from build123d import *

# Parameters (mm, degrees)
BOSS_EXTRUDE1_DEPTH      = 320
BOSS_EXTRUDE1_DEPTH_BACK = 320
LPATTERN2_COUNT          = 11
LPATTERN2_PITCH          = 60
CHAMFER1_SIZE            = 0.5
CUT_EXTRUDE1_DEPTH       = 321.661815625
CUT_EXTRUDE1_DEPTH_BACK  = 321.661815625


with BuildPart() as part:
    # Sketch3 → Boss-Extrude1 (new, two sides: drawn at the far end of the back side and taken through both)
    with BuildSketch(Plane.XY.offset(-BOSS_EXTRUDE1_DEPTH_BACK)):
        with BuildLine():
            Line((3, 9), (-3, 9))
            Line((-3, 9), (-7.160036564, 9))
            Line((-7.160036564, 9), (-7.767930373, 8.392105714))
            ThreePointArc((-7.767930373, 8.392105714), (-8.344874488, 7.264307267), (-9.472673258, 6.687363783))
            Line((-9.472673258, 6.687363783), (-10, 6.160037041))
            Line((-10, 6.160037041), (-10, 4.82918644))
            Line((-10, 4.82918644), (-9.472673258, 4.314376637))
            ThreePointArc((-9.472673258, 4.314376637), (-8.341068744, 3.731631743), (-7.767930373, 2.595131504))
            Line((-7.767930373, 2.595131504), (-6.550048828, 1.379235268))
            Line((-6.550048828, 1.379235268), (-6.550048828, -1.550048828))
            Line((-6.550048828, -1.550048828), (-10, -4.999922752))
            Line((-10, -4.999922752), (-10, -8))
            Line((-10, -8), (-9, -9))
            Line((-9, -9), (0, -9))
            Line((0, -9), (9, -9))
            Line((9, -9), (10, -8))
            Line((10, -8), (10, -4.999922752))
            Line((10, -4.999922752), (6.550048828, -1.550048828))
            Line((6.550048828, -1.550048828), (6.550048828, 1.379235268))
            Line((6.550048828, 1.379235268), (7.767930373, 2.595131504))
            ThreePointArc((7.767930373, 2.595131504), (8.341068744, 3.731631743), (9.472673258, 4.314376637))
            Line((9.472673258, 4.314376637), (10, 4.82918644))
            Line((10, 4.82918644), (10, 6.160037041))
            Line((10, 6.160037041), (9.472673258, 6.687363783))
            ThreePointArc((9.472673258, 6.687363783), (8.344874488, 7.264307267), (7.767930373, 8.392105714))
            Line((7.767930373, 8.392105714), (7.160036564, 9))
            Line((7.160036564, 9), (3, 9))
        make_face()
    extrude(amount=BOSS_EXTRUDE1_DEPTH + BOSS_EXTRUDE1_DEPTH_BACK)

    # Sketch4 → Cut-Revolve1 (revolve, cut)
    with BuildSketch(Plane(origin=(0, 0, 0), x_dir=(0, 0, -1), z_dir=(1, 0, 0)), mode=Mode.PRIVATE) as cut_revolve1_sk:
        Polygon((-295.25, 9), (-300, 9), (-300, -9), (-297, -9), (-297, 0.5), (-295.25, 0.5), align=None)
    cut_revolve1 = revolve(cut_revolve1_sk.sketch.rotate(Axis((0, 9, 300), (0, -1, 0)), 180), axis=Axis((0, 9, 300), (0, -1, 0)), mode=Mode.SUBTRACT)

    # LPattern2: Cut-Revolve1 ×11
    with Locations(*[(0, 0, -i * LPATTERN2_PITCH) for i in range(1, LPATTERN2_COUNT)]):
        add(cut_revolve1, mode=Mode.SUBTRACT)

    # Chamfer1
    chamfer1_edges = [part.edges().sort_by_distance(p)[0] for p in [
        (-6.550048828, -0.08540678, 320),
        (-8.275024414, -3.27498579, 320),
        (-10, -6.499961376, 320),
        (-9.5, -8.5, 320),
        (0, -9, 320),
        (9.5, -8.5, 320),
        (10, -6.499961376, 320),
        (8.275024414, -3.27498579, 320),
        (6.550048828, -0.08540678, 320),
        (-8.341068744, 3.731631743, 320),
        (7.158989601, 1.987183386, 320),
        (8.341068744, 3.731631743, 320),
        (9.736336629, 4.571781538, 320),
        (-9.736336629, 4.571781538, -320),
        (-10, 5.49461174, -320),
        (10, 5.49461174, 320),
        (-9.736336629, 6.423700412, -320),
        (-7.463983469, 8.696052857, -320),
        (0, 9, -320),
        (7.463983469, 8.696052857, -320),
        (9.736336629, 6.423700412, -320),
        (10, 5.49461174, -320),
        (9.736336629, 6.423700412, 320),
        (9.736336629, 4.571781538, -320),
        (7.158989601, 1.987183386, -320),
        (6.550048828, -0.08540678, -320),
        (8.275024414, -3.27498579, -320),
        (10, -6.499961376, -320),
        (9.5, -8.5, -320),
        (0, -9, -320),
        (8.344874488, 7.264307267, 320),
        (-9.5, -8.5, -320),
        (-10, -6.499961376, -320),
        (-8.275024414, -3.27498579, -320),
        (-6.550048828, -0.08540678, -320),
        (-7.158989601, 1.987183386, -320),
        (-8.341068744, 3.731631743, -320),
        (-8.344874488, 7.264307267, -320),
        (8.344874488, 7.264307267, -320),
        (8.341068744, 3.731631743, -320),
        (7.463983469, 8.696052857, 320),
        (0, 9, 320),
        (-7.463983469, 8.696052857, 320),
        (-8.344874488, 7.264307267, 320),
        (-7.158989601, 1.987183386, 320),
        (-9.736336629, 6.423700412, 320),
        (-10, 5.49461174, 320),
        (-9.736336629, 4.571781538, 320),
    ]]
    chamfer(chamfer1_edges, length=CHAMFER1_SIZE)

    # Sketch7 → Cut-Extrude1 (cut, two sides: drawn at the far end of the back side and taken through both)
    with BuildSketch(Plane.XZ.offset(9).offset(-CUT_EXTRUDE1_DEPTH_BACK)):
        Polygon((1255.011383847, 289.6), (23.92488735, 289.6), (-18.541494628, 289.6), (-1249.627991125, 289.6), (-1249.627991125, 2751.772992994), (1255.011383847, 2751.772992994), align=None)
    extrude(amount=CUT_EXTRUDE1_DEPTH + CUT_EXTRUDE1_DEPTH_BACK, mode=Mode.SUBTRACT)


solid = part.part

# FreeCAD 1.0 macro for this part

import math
import FreeCAD as App
import Part
import Sketcher


def edges_at(feature, points):
    """Names of the edges that pass closest to the given points."""
    edges = feature.Shape.Edges
    near = lambda p: min(range(len(edges)), key=lambda i: edges[i].distToShape(Part.Vertex(*p))[0])
    return sorted({f"Edge{near(p) + 1}" for p in points})


def add_polygon(sketch, points):
    """Adds a closed chain of lines whose ends are joined by coincident constraints."""
    first, n = sketch.GeometryCount, len(points)
    for a, b in zip(points, points[1:] + points[:1]):
        sketch.addGeometry(Part.LineSegment(App.Vector(*a, 0), App.Vector(*b, 0)), False)
    for i in range(n):
        sketch.addConstraint(Sketcher.Constraint("Coincident", first + i, 2, first + (i + 1) % n, 1))

doc = App.newDocument("Part")
body = doc.addObject("PartDesign::Body", "Body")

# Sketch on XY plane
sketch1 = body.newObject("Sketcher::SketchObject", "Sketch")
sketch1.AttachmentSupport = (doc.getObject("XY_Plane"), [""])
sketch1.MapMode = "FlatFace"
sketch1.addGeometry([
    Part.LineSegment(App.Vector(-7.160037, 9, 0), App.Vector(-7.76793, 8.392106, 0)),  # 0
    Part.ArcOfCircle(Part.Circle(App.Vector(-9.801514, 8.720947, 0), App.Vector(0, 0, 1), 2.059999), math.radians(-80.814503), math.radians(-9.185529)),  # 1
    Part.LineSegment(App.Vector(-9.472673, 6.687364, 0), App.Vector(-10, 6.160037, 0)),  # 2
    Part.LineSegment(App.Vector(-10, 6.160037, 0), App.Vector(-10, 4.829186, 0)),  # 3
    Part.LineSegment(App.Vector(-10, 4.829186, 0), App.Vector(-9.472673, 4.314377, 0)),  # 4
    Part.ArcOfCircle(Part.Circle(App.Vector(-9.803865, 2.281175, 0), App.Vector(0, 0, 1), 2.059999), math.radians(8.766397), math.radians(80.748255)),  # 5
    Part.LineSegment(App.Vector(-7.76793, 2.595132, 0), App.Vector(-6.550049, 1.379235, 0)),  # 6
    Part.LineSegment(App.Vector(-6.550049, 1.379235, 0), App.Vector(-6.550049, -1.550049, 0)),  # 7
    Part.LineSegment(App.Vector(-6.550049, -1.550049, 0), App.Vector(-10, -4.999923, 0)),  # 8
    Part.LineSegment(App.Vector(-10, -4.999923, 0), App.Vector(-10, -8, 0)),  # 9
    Part.LineSegment(App.Vector(-10, -8, 0), App.Vector(-9, -9, 0)),  # 10
    Part.LineSegment(App.Vector(-9, -9, 0), App.Vector(9, -9, 0)),  # 11
    Part.LineSegment(App.Vector(9, -9, 0), App.Vector(10, -8, 0)),  # 12
    Part.LineSegment(App.Vector(10, -8, 0), App.Vector(10, -4.999923, 0)),  # 13
    Part.LineSegment(App.Vector(10, -4.999923, 0), App.Vector(6.550049, -1.550049, 0)),  # 14
    Part.LineSegment(App.Vector(6.550049, -1.550049, 0), App.Vector(6.550049, 1.379235, 0)),  # 15
    Part.LineSegment(App.Vector(6.550049, 1.379235, 0), App.Vector(7.76793, 2.595132, 0)),  # 16
    Part.ArcOfCircle(Part.Circle(App.Vector(9.803865, 2.281175, 0), App.Vector(0, 0, 1), 2.059999), math.radians(99.251745), math.radians(171.233603)),  # 17
    Part.LineSegment(App.Vector(9.472673, 4.314377, 0), App.Vector(10, 4.829186, 0)),  # 18
    Part.LineSegment(App.Vector(10, 4.829186, 0), App.Vector(10, 6.160037, 0)),  # 19
    Part.LineSegment(App.Vector(10, 6.160037, 0), App.Vector(9.472673, 6.687364, 0)),  # 20
    Part.ArcOfCircle(Part.Circle(App.Vector(9.801514, 8.720947, 0), App.Vector(0, 0, 1), 2.059999), math.radians(-170.814471), math.radians(-99.185497)),  # 21
    Part.LineSegment(App.Vector(7.76793, 8.392106, 0), App.Vector(7.160037, 9, 0)),  # 22
    Part.LineSegment(App.Vector(7.160037, 9, 0), App.Vector(-7.160037, 9, 0)),  # 23
], False)
sketch1.addConstraint([
    Sketcher.Constraint("Coincident", 0, 2, 1, 2),
    Sketcher.Constraint("Coincident", 1, 1, 2, 1),
    Sketcher.Constraint("Coincident", 2, 2, 3, 1),
    Sketcher.Constraint("Coincident", 3, 2, 4, 1),
    Sketcher.Constraint("Coincident", 4, 2, 5, 2),
    Sketcher.Constraint("Coincident", 5, 1, 6, 1),
    Sketcher.Constraint("Coincident", 6, 2, 7, 1),
    Sketcher.Constraint("Coincident", 7, 2, 8, 1),
    Sketcher.Constraint("Coincident", 8, 2, 9, 1),
    Sketcher.Constraint("Coincident", 9, 2, 10, 1),
    Sketcher.Constraint("Coincident", 10, 2, 11, 1),
    Sketcher.Constraint("Coincident", 11, 2, 12, 1),
    Sketcher.Constraint("Coincident", 12, 2, 13, 1),
    Sketcher.Constraint("Coincident", 13, 2, 14, 1),
    Sketcher.Constraint("Coincident", 14, 2, 15, 1),
    Sketcher.Constraint("Coincident", 15, 2, 16, 1),
    Sketcher.Constraint("Coincident", 16, 2, 17, 2),
    Sketcher.Constraint("Coincident", 17, 1, 18, 1),
    Sketcher.Constraint("Coincident", 18, 2, 19, 1),
    Sketcher.Constraint("Coincident", 19, 2, 20, 1),
    Sketcher.Constraint("Coincident", 20, 2, 21, 2),
    Sketcher.Constraint("Coincident", 21, 1, 22, 1),
    Sketcher.Constraint("Coincident", 22, 2, 23, 1),
    Sketcher.Constraint("Coincident", 23, 2, 0, 1),
    Sketcher.Constraint("Vertical", 3),
    Sketcher.Constraint("Vertical", 7),
    Sketcher.Constraint("Vertical", 9),
    Sketcher.Constraint("Horizontal", 11),
    Sketcher.Constraint("Vertical", 13),
    Sketcher.Constraint("Vertical", 15),
    Sketcher.Constraint("Vertical", 19),
    Sketcher.Constraint("Horizontal", 23),
    Sketcher.Constraint("Equal", 1, 5),
    Sketcher.Constraint("Equal", 5, 17),
    Sketcher.Constraint("Equal", 17, 21),
    Sketcher.Constraint("Symmetric", 5, 3, 17, 3, -2),
    Sketcher.Constraint("Symmetric", 1, 3, 21, 3, -2),
    Sketcher.Constraint("Symmetric", 9, 2, 12, 2, -2),
    Sketcher.Constraint("Symmetric", 7, 2, 14, 2, -2),
    Sketcher.Constraint("Symmetric", 3, 2, 18, 2, -2),
    Sketcher.Constraint("Parallel", 0, 2),
    Sketcher.Constraint("Perpendicular", 2, 10),
    Sketcher.Constraint("Perpendicular", 10, 12),
    Sketcher.Constraint("Perpendicular", 12, 20),
    Sketcher.Constraint("Parallel", 20, 22),
    Sketcher.Constraint("Horizontal", 8, 2, 13, 2),
    Sketcher.Constraint("Horizontal", 6, 2, 15, 2),
    Sketcher.Constraint("Horizontal", 5, 1, 16, 2),
    Sketcher.Constraint("Horizontal", 4, 2, 17, 1),
    Sketcher.Constraint("Horizontal", 2, 2, 19, 2),
    Sketcher.Constraint("Horizontal", 1, 1, 20, 2),
    Sketcher.Constraint("Horizontal", 0, 2, 21, 1),
    Sketcher.Constraint("Vertical", 1, 1, 4, 2),
    Sketcher.Constraint("Vertical", 0, 2, 5, 1),
    Sketcher.Constraint("Vertical", 3, 2, 8, 2),
    Sketcher.Constraint("DistanceX", 11, 1, 11, 2, 18.0),
    Sketcher.Constraint("Radius", 1, 2.059999),
    Sketcher.Constraint("DistanceX", 2, 2, -1, 1, 10.0),
    Sketcher.Constraint("DistanceY", 9, 2, -1, 1, 8.0),
    Sketcher.Constraint("DistanceY", -1, 1, 22, 2, 9.0),
    Sketcher.Constraint("DistanceY", 3, 2, 3, 1, 1.330851),
    Sketcher.Constraint("DistanceY", 5, 3, 4, 2, 2.033202),
    Sketcher.Constraint("DistanceY", 6, 2, 2, 2, 4.780802),
    Sketcher.Constraint("DistanceY", 8, 2, 4, 2, 9.314299),
    Sketcher.Constraint("Distance", 6, 1.720941),
    Sketcher.Constraint("DistanceX", 23, 2, 23, 1, 14.320073),
    Sketcher.Constraint("DistanceY", 7, 2, 7, 1, 2.929284),
    Sketcher.Constraint("DistanceY", 9, 2, 9, 1, 3.000077),
    Sketcher.Constraint("DistanceX", 0, 2, -1, 1, 7.76793),
    Sketcher.Constraint("DistanceY", -1, 1, 5, 1, 2.595132),
    Sketcher.Constraint("DistanceX", 6, 2, -1, 1, 6.550049),
])
pad1 = body.newObject("PartDesign::Pad", "Pad")
pad1.Profile = sketch1
pad1.Type = "TwoLengths"
pad1.Length = 320
pad1.Length2 = 320

# Sketch on YZ plane
sketch2 = body.newObject("Sketcher::SketchObject", "Sketch001")
sketch2.AttachmentSupport = (doc.getObject("YZ_Plane"), [""])
sketch2.MapMode = "FlatFace"
add_polygon(sketch2, [(9, 295.25), (9, 300), (-9, 300), (-9, 297), (0.5, 297), (0.5, 295.25)])  # lines 0-5
sketch2.addGeometry(Part.LineSegment(App.Vector(9, 300, 0), App.Vector(-9, 300, 0)), True)  # axis
sketch2.addConstraint([
    Sketcher.Constraint("Vertical", 0),
    Sketcher.Constraint("Horizontal", 1),
    Sketcher.Constraint("Vertical", 2),
    Sketcher.Constraint("Horizontal", 3),
    Sketcher.Constraint("Vertical", 4),
    Sketcher.Constraint("Horizontal", 5),
    Sketcher.Constraint("Horizontal", 6),
    Sketcher.Constraint("Coincident", 6, 1, 0, 2),
    Sketcher.Constraint("Vertical", 2, 2, 6, 2),
    Sketcher.Constraint("DistanceX", 1, 2, 1, 1, 18.0),
    Sketcher.Constraint("DistanceY", 2, 2, 2, 1, 3.0),
    Sketcher.Constraint("DistanceX", 3, 1, 3, 2, 9.5),
    Sketcher.Constraint("DistanceX", -1, 1, 0, 2, 9.0),
    Sketcher.Constraint("DistanceY", -1, 1, 0, 2, 300.0),
    Sketcher.Constraint("DistanceY", 0, 1, 0, 2, 4.75),
])
groove = body.newObject("PartDesign::Groove", "Groove")
groove.Profile = sketch2
groove.ReferenceAxis = (sketch2, ["Axis0"])
groove.Angle = 360
doc.recompute()

linearpattern = body.newObject("PartDesign::LinearPattern", "LinearPattern")
linearpattern.Originals = [groove]
linearpattern.Direction = (doc.getObject("Z_Axis"), [""])
linearpattern.Mode = "offset"
linearpattern.Offset = 60
linearpattern.Occurrences = 11
linearpattern.Reversed = True
body.Tip = linearpattern
doc.recompute()

chamfer = body.newObject("PartDesign::Chamfer", "Chamfer")
chamfer.Base = (linearpattern, edges_at(linearpattern, [
    (-6.55, -0.085, 320),
    (-8.275, -3.275, 320),
    (-10, -6.5, 320),
    (-9.5, -8.5, 320),
    (0, -9, 320),
    (9.5, -8.5, 320),
    (10, -6.5, 320),
    (8.275, -3.275, 320),
    (6.55, -0.085, 320),
    (-8.341, 3.732, 320),
    (7.159, 1.987, 320),
    (8.341, 3.732, 320),
    (9.736, 4.572, 320),
    (-9.736, 4.572, -320),
    (-10, 5.495, -320),
    (10, 5.495, 320),
    (-9.736, 6.424, -320),
    (-7.464, 8.696, -320),
    (0, 9, -320),
    (7.464, 8.696, -320),
    (9.736, 6.424, -320),
    (10, 5.495, -320),
    (9.736, 6.424, 320),
    (9.736, 4.572, -320),
    (7.159, 1.987, -320),
    (6.55, -0.085, -320),
    (8.275, -3.275, -320),
    (10, -6.5, -320),
    (9.5, -8.5, -320),
    (0, -9, -320),
    (8.345, 7.264, 320),
    (-9.5, -8.5, -320),
    (-10, -6.5, -320),
    (-8.275, -3.275, -320),
    (-6.55, -0.085, -320),
    (-7.159, 1.987, -320),
    (-8.341, 3.732, -320),
    (-8.345, 7.264, -320),
    (8.345, 7.264, -320),
    (8.341, 3.732, -320),
    (7.464, 8.696, 320),
    (0, 9, 320),
    (-7.464, 8.696, 320),
    (-8.345, 7.264, 320),
    (-7.159, 1.987, 320),
    (-9.736, 6.424, 320),
    (-10, 5.495, 320),
    (-9.736, 4.572, 320),
]))
chamfer.Size = 0.5

# Sketch on XZ plane
sketch3 = body.newObject("Sketcher::SketchObject", "Sketch002")
sketch3.AttachmentSupport = (doc.getObject("XZ_Plane"), [""])
sketch3.MapMode = "FlatFace"
sketch3.AttachmentOffset = App.Placement(App.Vector(0, 0, 9), App.Rotation())
add_polygon(sketch3, [(-1249.627991, 289.6), (1255.011384, 289.6), (1255.011384, 2751.772993), (-1249.627991, 2751.772993)])  # lines 0-3
sketch3.addConstraint([
    Sketcher.Constraint("Horizontal", 0),
    Sketcher.Constraint("Vertical", 1),
    Sketcher.Constraint("Horizontal", 2),
    Sketcher.Constraint("Vertical", 3),
    Sketcher.Constraint("DistanceY", -1, 1, 0, 2, 289.6),
    Sketcher.Constraint("DistanceX", 0, 1, 0, 2, 2504.639375),
    Sketcher.Constraint("DistanceY", 1, 1, 1, 2, 2462.172993),
    Sketcher.Constraint("DistanceX", 2, 2, -1, 1, 1249.627991),
])
pocket1 = body.newObject("PartDesign::Pocket", "Pocket")
pocket1.Profile = sketch3
pocket1.Type = "ThroughAll"
pocket1.Midplane = True

doc.recompute()
